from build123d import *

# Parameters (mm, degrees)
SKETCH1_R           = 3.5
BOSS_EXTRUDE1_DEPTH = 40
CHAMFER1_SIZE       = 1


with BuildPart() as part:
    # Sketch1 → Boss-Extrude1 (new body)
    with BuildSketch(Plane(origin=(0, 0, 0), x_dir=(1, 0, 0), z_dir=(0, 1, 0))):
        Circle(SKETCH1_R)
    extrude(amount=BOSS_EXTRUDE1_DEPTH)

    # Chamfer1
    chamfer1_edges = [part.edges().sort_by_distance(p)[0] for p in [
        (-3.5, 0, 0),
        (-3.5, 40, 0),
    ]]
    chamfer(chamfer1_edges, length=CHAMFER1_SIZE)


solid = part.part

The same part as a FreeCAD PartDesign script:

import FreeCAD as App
import Part
import Sketcher


def edges_at(feature, points):
    """Names of the edges that pass closest to the given points."""
    edges = feature.Shape.Edges
    near = lambda p: min(range(len(edges)), key=lambda i: edges[i].distToShape(Part.Vertex(*p))[0])
    return sorted({f"Edge{near(p) + 1}" for p in points})

doc = App.newDocument("Part")
body = doc.addObject("PartDesign::Body", "Body")

sketch1 = doc.addObject("Sketcher::SketchObject", "Sketch")
body.addObject(sketch1)
sketch1.AttachmentSupport = (doc.XZ_Plane, [""])
sketch1.MapMode = "FlatFace"
sketch1.addGeometry(Part.Circle(App.Vector(0, 0, 0), App.Vector(0, 0, 1), 3.5), False)
sketch1.addConstraint(Sketcher.Constraint("Coincident", 0, 3, -1, 1))
sketch1.addConstraint(Sketcher.Constraint("Diameter", 0, 7.0))
pad1 = doc.addObject("PartDesign::Pad", "Pad")
body.addObject(pad1)
pad1.Profile = sketch1
pad1.Length = 40
pad1.Reversed = True
doc.recompute()

chamfer = doc.addObject("PartDesign::Chamfer", "Chamfer")
body.addObject(chamfer)
chamfer.Base = (pad1, edges_at(pad1, [(-3.5, 0, 0), (-3.5, 40, 0)]))
chamfer.Size = 1

doc.recompute()
